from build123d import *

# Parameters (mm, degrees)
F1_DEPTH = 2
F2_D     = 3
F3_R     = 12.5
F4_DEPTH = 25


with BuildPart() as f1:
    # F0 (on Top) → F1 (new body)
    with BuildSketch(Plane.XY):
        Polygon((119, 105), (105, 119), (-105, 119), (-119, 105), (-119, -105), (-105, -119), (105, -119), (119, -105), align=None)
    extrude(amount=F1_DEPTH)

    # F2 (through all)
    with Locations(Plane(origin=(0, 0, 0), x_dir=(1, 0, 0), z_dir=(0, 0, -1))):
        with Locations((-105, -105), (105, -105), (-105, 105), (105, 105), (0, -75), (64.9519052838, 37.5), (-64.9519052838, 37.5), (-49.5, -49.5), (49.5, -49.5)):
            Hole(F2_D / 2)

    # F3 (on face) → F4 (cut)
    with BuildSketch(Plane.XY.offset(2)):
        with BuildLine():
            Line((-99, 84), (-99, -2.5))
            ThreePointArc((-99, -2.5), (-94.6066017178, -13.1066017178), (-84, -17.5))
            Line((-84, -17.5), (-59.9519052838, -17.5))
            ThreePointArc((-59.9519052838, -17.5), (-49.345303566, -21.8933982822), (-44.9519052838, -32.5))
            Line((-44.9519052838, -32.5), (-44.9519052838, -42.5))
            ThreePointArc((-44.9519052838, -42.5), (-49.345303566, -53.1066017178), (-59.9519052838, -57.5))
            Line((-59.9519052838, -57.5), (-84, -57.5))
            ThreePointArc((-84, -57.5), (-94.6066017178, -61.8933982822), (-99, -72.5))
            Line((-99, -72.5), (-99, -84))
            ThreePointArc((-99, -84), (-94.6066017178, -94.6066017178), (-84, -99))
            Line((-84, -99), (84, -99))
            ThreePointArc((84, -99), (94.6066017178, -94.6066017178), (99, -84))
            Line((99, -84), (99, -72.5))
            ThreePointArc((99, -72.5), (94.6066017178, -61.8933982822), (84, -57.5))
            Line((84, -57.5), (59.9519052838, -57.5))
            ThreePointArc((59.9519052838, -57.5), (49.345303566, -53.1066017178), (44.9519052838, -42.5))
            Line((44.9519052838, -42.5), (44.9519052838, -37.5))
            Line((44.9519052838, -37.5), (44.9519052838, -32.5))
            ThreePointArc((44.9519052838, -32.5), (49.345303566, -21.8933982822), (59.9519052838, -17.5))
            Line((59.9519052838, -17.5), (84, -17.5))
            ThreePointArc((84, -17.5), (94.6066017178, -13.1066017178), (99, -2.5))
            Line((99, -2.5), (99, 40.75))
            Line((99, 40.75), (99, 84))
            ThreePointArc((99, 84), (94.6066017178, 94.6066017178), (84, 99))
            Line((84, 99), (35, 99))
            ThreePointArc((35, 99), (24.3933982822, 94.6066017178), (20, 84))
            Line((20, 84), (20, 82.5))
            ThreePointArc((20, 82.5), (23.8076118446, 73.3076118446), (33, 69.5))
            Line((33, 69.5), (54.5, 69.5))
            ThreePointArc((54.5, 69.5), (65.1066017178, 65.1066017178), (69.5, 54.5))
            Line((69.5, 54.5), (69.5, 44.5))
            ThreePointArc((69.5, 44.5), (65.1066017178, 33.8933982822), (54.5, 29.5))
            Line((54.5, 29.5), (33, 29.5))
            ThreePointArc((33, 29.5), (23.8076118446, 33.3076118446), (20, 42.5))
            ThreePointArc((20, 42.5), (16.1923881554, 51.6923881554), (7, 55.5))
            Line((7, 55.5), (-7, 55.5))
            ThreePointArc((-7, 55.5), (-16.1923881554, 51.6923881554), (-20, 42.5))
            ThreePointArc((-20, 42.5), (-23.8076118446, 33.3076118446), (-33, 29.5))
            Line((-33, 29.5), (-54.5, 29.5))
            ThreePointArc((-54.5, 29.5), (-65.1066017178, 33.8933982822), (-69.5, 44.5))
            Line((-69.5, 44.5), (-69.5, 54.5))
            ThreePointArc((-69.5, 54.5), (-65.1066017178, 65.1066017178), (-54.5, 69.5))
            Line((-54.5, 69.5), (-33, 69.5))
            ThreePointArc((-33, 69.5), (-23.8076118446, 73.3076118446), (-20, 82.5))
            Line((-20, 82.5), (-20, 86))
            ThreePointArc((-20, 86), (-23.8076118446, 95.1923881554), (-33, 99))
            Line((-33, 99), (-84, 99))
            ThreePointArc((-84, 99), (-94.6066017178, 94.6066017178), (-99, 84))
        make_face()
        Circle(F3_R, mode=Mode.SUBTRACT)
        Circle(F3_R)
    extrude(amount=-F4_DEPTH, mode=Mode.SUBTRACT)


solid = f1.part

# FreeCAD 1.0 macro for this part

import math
import FreeCAD as App
import Part
import Sketcher
Q = App.Units.Quantity

doc = App.newDocument("Part")
body = doc.addObject("PartDesign::Body", "Body")

sketch1 = body.newObject("Sketcher::SketchObject", "Sketch")
sketch1.AttachmentSupport = (doc.getObject("XY_Plane"), [""])
sketch1.MapMode = "FlatFace"
sketch1.addGeometry([
    Part.LineSegment(App.Vector(119, 105, 0), App.Vector(105, 119, 0)),
    Part.LineSegment(App.Vector(105, 119, 0), App.Vector(-105, 119, 0)),
    Part.LineSegment(App.Vector(-105, 119, 0), App.Vector(-119, 105, 0)),
    Part.LineSegment(App.Vector(-119, 105, 0), App.Vector(-119, -105, 0)),
    Part.LineSegment(App.Vector(-119, -105, 0), App.Vector(-105, -119, 0)),
    Part.LineSegment(App.Vector(-105, -119, 0), App.Vector(105, -119, 0)),
    Part.LineSegment(App.Vector(105, -119, 0), App.Vector(119, -105, 0)),
    Part.LineSegment(App.Vector(119, -105, 0), App.Vector(119, 105, 0)),
], False)
sketch1.addConstraint([
    Sketcher.Constraint("Coincident", 0, 2, 1, 1),
    Sketcher.Constraint("Coincident", 1, 2, 2, 1),
    Sketcher.Constraint("Coincident", 2, 2, 3, 1),
    Sketcher.Constraint("Coincident", 3, 2, 4, 1),
    Sketcher.Constraint("Coincident", 4, 2, 5, 1),
    Sketcher.Constraint("Coincident", 5, 2, 6, 1),
    Sketcher.Constraint("Coincident", 6, 2, 7, 1),
    Sketcher.Constraint("Coincident", 7, 2, 0, 1),
    Sketcher.Constraint("Horizontal", 1),
    Sketcher.Constraint("Vertical", 3),
    Sketcher.Constraint("Horizontal", 5),
    Sketcher.Constraint("Vertical", 7),
    Sketcher.Constraint("Symmetric", 0, 2, 4, 2, -1, 1),
    Sketcher.Constraint("Symmetric", 2, 2, 6, 2, -1, 1),
    Sketcher.Constraint("Perpendicular", 0, 2),
    Sketcher.Constraint("Perpendicular", 2, 4),
    Sketcher.Constraint("Perpendicular", 4, 6),
    Sketcher.Constraint("Horizontal", 3, 2, 6, 2),
    Sketcher.Constraint("Vertical", 1, 2, 4, 2),
    Sketcher.Constraint("Equal", 5, 3),
    Sketcher.Constraint("DistanceX", 1, 2, 1, 1, Q("210 mm")),
    Sketcher.Constraint("DistanceY", -1, 1, 0, 2, Q("119 mm")),
])
pad1 = body.newObject("PartDesign::Pad", "Pad")
pad1.Profile = sketch1
pad1.Length = 2

sketch2 = body.newObject("Sketcher::SketchObject", "Sketch001")
sketch2.AttachmentSupport = (doc.getObject("XY_Plane"), [""])
sketch2.MapMode = "FlatFace"
sketch2.addGeometry([
    Part.Circle(App.Vector(-105, 105, 0), App.Vector(0, 0, 1), 1.5),
    Part.Circle(App.Vector(105, 105, 0), App.Vector(0, 0, 1), 1.5),
    Part.Circle(App.Vector(-105, -105, 0), App.Vector(0, 0, 1), 1.5),
    Part.Circle(App.Vector(105, -105, 0), App.Vector(0, 0, 1), 1.5),
    Part.Circle(App.Vector(0, 75, 0), App.Vector(0, 0, 1), 1.5),
    Part.Circle(App.Vector(65, -37.5, 0), App.Vector(0, 0, 1), 1.5),
    Part.Circle(App.Vector(-65, -37.5, 0), App.Vector(0, 0, 1), 1.5),
    Part.Circle(App.Vector(-49.5, 49.5, 0), App.Vector(0, 0, 1), 1.5),
    Part.Circle(App.Vector(49.5, 49.5, 0), App.Vector(0, 0, 1), 1.5),
], False)
sketch2.addConstraint([
    Sketcher.Constraint("Equal", 0, 1),
    Sketcher.Constraint("Equal", 1, 2),
    Sketcher.Constraint("Equal", 2, 3),
    Sketcher.Constraint("Equal", 3, 4),
    Sketcher.Constraint("Equal", 4, 5),
    Sketcher.Constraint("Equal", 5, 6),
    Sketcher.Constraint("Equal", 6, 7),
    Sketcher.Constraint("Equal", 7, 8),
    Sketcher.Constraint("Symmetric", 1, 3, 2, 3, -1, 1),
    Sketcher.Constraint("Symmetric", 0, 3, 3, 3, -1, 1),
    Sketcher.Constraint("Symmetric", 0, 3, 1, 3, -2),
    Sketcher.Constraint("Symmetric", 5, 3, 6, 3, -2),
    Sketcher.Constraint("Symmetric", 7, 3, 8, 3, -2),
    Sketcher.Constraint("PointOnObject", 4, 3, -2),
    Sketcher.Constraint("Diameter", 0, Q("3 mm")),
    Sketcher.Constraint("DistanceX", 0, 3, -1, 1, Q("105 mm")),
    Sketcher.Constraint("DistanceY", -1, 1, 0, 3, Q("105 mm")),
    Sketcher.Constraint("DistanceY", -1, 1, 4, 3, Q("75 mm")),
    Sketcher.Constraint("DistanceY", 6, 3, 7, 3, Q("87 mm")),
    Sketcher.Constraint("DistanceX", 7, 3, 8, 3, Q("99 mm")),
    Sketcher.Constraint("DistanceY", 5, 3, -1, 1, Q("37.5 mm")),
    Sketcher.Constraint("DistanceX", 6, 3, 5, 3, Q("129.903811 mm")),
])
doc.recompute()
hole = body.newObject("PartDesign::Hole", "Hole")
hole.Profile = sketch2
hole.ThreadType = "None"
hole.Diameter = 3
hole.DepthType = "ThroughAll"
hole.Reversed = True

sketch3 = body.newObject("Sketcher::SketchObject", "Sketch002")
sketch3.AttachmentSupport = (doc.getObject("XY_Plane"), [""])
sketch3.MapMode = "FlatFace"
sketch3.AttachmentOffset = App.Placement(App.Vector(0, 0, 2), App.Rotation())
sketch3.addGeometry([
    Part.LineSegment(App.Vector(-99, 84, 0), App.Vector(-99, -2.5, 0)),
    Part.ArcOfCircle(Part.Circle(App.Vector(-84, -2.5, 0), App.Vector(0, 0, 1), 15), math.radians(180), math.radians(270)),
    Part.LineSegment(App.Vector(-84, -17.5, 0), App.Vector(-60, -17.5, 0)),
    Part.ArcOfCircle(Part.Circle(App.Vector(-60, -32.5, 0), App.Vector(0, 0, 1), 15), math.radians(0), math.radians(90)),
    Part.LineSegment(App.Vector(-45, -32.5, 0), App.Vector(-45, -42.5, 0)),
    Part.ArcOfCircle(Part.Circle(App.Vector(-60, -42.5, 0), App.Vector(0, 0, 1), 15), math.radians(-90), math.radians(0)),
    Part.LineSegment(App.Vector(-60, -57.5, 0), App.Vector(-84, -57.5, 0)),
    Part.ArcOfCircle(Part.Circle(App.Vector(-84, -72.5, 0), App.Vector(0, 0, 1), 15), math.radians(90), math.radians(180)),
    Part.LineSegment(App.Vector(-99, -72.5, 0), App.Vector(-99, -84, 0)),
    Part.ArcOfCircle(Part.Circle(App.Vector(-84, -84, 0), App.Vector(0, 0, 1), 15), math.radians(180), math.radians(270)),
    Part.LineSegment(App.Vector(-84, -99, 0), App.Vector(84, -99, 0)),
    Part.ArcOfCircle(Part.Circle(App.Vector(84, -84, 0), App.Vector(0, 0, 1), 15), math.radians(-90), math.radians(0)),
    Part.LineSegment(App.Vector(99, -84, 0), App.Vector(99, -72.5, 0)),
    Part.ArcOfCircle(Part.Circle(App.Vector(84, -72.5, 0), App.Vector(0, 0, 1), 15), math.radians(0), math.radians(90)),
    Part.LineSegment(App.Vector(84, -57.5, 0), App.Vector(60, -57.5, 0)),
    Part.ArcOfCircle(Part.Circle(App.Vector(60, -42.5, 0), App.Vector(0, 0, 1), 15), math.radians(180), math.radians(270)),
    Part.LineSegment(App.Vector(45, -42.5, 0), App.Vector(45, -32.5, 0)),
    Part.ArcOfCircle(Part.Circle(App.Vector(60, -32.5, 0), App.Vector(0, 0, 1), 15), math.radians(90), math.radians(180)),
    Part.LineSegment(App.Vector(60, -17.5, 0), App.Vector(84, -17.5, 0)),
    Part.ArcOfCircle(Part.Circle(App.Vector(84, -2.5, 0), App.Vector(0, 0, 1), 15), math.radians(-90), math.radians(0)),
    Part.LineSegment(App.Vector(99, -2.5, 0), App.Vector(99, 84, 0)),
    Part.ArcOfCircle(Part.Circle(App.Vector(84, 84, 0), App.Vector(0, 0, 1), 15), math.radians(0), math.radians(90)),
    Part.LineSegment(App.Vector(84, 99, 0), App.Vector(35, 99, 0)),
    Part.ArcOfCircle(Part.Circle(App.Vector(35, 84, 0), App.Vector(0, 0, 1), 15), math.radians(90), math.radians(180)),
    Part.LineSegment(App.Vector(20, 84, 0), App.Vector(20, 82.5, 0)),
    Part.ArcOfCircle(Part.Circle(App.Vector(33, 82.5, 0), App.Vector(0, 0, 1), 13), math.radians(180), math.radians(270)),
    Part.LineSegment(App.Vector(33, 69.5, 0), App.Vector(54.5, 69.5, 0)),
    Part.ArcOfCircle(Part.Circle(App.Vector(54.5, 54.5, 0), App.Vector(0, 0, 1), 15), math.radians(0), math.radians(90)),
    Part.LineSegment(App.Vector(69.5, 54.5, 0), App.Vector(69.5, 44.5, 0)),
    Part.ArcOfCircle(Part.Circle(App.Vector(54.5, 44.5, 0), App.Vector(0, 0, 1), 15), math.radians(-90), math.radians(0)),
    Part.LineSegment(App.Vector(54.5, 29.5, 0), App.Vector(33, 29.5, 0)),
    Part.ArcOfCircle(Part.Circle(App.Vector(33, 42.5, 0), App.Vector(0, 0, 1), 13), math.radians(180), math.radians(270)),
    Part.ArcOfCircle(Part.Circle(App.Vector(7, 42.5, 0), App.Vector(0, 0, 1), 13), math.radians(0), math.radians(90)),
    Part.LineSegment(App.Vector(7, 55.5, 0), App.Vector(-7, 55.5, 0)),
    Part.ArcOfCircle(Part.Circle(App.Vector(-7, 42.5, 0), App.Vector(0, 0, 1), 13), math.radians(90), math.radians(180)),
    Part.ArcOfCircle(Part.Circle(App.Vector(-33, 42.5, 0), App.Vector(0, 0, 1), 13), math.radians(-90), math.radians(0)),
    Part.LineSegment(App.Vector(-33, 29.5, 0), App.Vector(-54.5, 29.5, 0)),
    Part.ArcOfCircle(Part.Circle(App.Vector(-54.5, 44.5, 0), App.Vector(0, 0, 1), 15), math.radians(180), math.radians(270)),
    Part.LineSegment(App.Vector(-69.5, 44.5, 0), App.Vector(-69.5, 54.5, 0)),
    Part.ArcOfCircle(Part.Circle(App.Vector(-54.5, 54.5, 0), App.Vector(0, 0, 1), 15), math.radians(90), math.radians(180)),
    Part.LineSegment(App.Vector(-54.5, 69.5, 0), App.Vector(-33, 69.5, 0)),
    Part.ArcOfCircle(Part.Circle(App.Vector(-33, 82.5, 0), App.Vector(0, 0, 1), 13), math.radians(-90), math.radians(0)),
    Part.LineSegment(App.Vector(-20, 82.5, 0), App.Vector(-20, 86, 0)),
    Part.ArcOfCircle(Part.Circle(App.Vector(-33, 86, 0), App.Vector(0, 0, 1), 13), math.radians(0), math.radians(90)),
    Part.LineSegment(App.Vector(-33, 99, 0), App.Vector(-84, 99, 0)),
    Part.ArcOfCircle(Part.Circle(App.Vector(-84, 84, 0), App.Vector(0, 0, 1), 15), math.radians(90), math.radians(180)),
], False)
sketch3.addConstraint([
    Sketcher.Constraint("Tangent", 0, 2, 1, 1),
    Sketcher.Constraint("Tangent", 1, 2, 2, 1),
    Sketcher.Constraint("Tangent", 2, 2, 3, 2),
    Sketcher.Constraint("Tangent", 3, 1, 4, 1),
    Sketcher.Constraint("Tangent", 4, 2, 5, 2),
    Sketcher.Constraint("Tangent", 5, 1, 6, 1),
    Sketcher.Constraint("Tangent", 6, 2, 7, 1),
    Sketcher.Constraint("Tangent", 7, 2, 8, 1),
    Sketcher.Constraint("Tangent", 8, 2, 9, 1),
    Sketcher.Constraint("Tangent", 9, 2, 10, 1),
    Sketcher.Constraint("Tangent", 10, 2, 11, 1),
    Sketcher.Constraint("Tangent", 11, 2, 12, 1),
    Sketcher.Constraint("Tangent", 12, 2, 13, 1),
    Sketcher.Constraint("Tangent", 13, 2, 14, 1),
    Sketcher.Constraint("Tangent", 14, 2, 15, 2),
    Sketcher.Constraint("Tangent", 15, 1, 16, 1),
    Sketcher.Constraint("Tangent", 16, 2, 17, 2),
    Sketcher.Constraint("Tangent", 17, 1, 18, 1),
    Sketcher.Constraint("Tangent", 18, 2, 19, 1),
    Sketcher.Constraint("Tangent", 19, 2, 20, 1),
    Sketcher.Constraint("Tangent", 20, 2, 21, 1),
    Sketcher.Constraint("Tangent", 21, 2, 22, 1),
    Sketcher.Constraint("Tangent", 22, 2, 23, 1),
    Sketcher.Constraint("Tangent", 23, 2, 24, 1),
    Sketcher.Constraint("Tangent", 24, 2, 25, 1),
    Sketcher.Constraint("Tangent", 25, 2, 26, 1),
    Sketcher.Constraint("Tangent", 26, 2, 27, 2),
    Sketcher.Constraint("Tangent", 27, 1, 28, 1),
    Sketcher.Constraint("Tangent", 28, 2, 29, 2),
    Sketcher.Constraint("Tangent", 29, 1, 30, 1),
    Sketcher.Constraint("Tangent", 30, 2, 31, 2),
    Sketcher.Constraint("Tangent", 31, 1, 32, 1),
    Sketcher.Constraint("Tangent", 32, 2, 33, 1),
    Sketcher.Constraint("Tangent", 33, 2, 34, 1),
    Sketcher.Constraint("Tangent", 34, 2, 35, 2),
    Sketcher.Constraint("Tangent", 35, 1, 36, 1),
    Sketcher.Constraint("Tangent", 36, 2, 37, 2),
    Sketcher.Constraint("Tangent", 37, 1, 38, 1),
    Sketcher.Constraint("Tangent", 38, 2, 39, 2),
    Sketcher.Constraint("Tangent", 39, 1, 40, 1),
    Sketcher.Constraint("Tangent", 40, 2, 41, 1),
    Sketcher.Constraint("Tangent", 41, 2, 42, 1),
    Sketcher.Constraint("Tangent", 42, 2, 43, 1),
    Sketcher.Constraint("Tangent", 43, 2, 44, 1),
    Sketcher.Constraint("Tangent", 44, 2, 45, 1),
    Sketcher.Constraint("Tangent", 45, 2, 0, 1),
    Sketcher.Constraint("Vertical", 0),
    Sketcher.Constraint("Horizontal", 2),
    Sketcher.Constraint("Vertical", 4),
    Sketcher.Constraint("Horizontal", 6),
    Sketcher.Constraint("Vertical", 8),
    Sketcher.Constraint("Horizontal", 10),
    Sketcher.Constraint("Vertical", 12),
    Sketcher.Constraint("Horizontal", 14),
    Sketcher.Constraint("Vertical", 16),
    Sketcher.Constraint("Horizontal", 18),
    Sketcher.Constraint("Vertical", 20),
    Sketcher.Constraint("Horizontal", 22),
    Sketcher.Constraint("Vertical", 24),
    Sketcher.Constraint("Horizontal", 26),
    Sketcher.Constraint("Vertical", 28),
    Sketcher.Constraint("Horizontal", 30),
    Sketcher.Constraint("Horizontal", 33),
    Sketcher.Constraint("Horizontal", 36),
    Sketcher.Constraint("Vertical", 38),
    Sketcher.Constraint("Horizontal", 40),
    Sketcher.Constraint("Vertical", 42),
    Sketcher.Constraint("Horizontal", 44),
    Sketcher.Constraint("Equal", 1, 3),
    Sketcher.Constraint("Equal", 3, 5),
    Sketcher.Constraint("Equal", 5, 7),
    Sketcher.Constraint("Equal", 7, 9),
    Sketcher.Constraint("Equal", 9, 11),
    Sketcher.Constraint("Equal", 11, 13),
    Sketcher.Constraint("Equal", 13, 15),
    Sketcher.Constraint("Equal", 15, 17),
    Sketcher.Constraint("Equal", 17, 19),
    Sketcher.Constraint("Equal", 19, 21),
    Sketcher.Constraint("Equal", 21, 23),
    Sketcher.Constraint("Equal", 23, 27),
    Sketcher.Constraint("Equal", 27, 29),
    Sketcher.Constraint("Equal", 25, 31),
    Sketcher.Constraint("Equal", 31, 32),
    Sketcher.Constraint("Equal", 32, 34),
    Sketcher.Constraint("Equal", 34, 35),
    Sketcher.Constraint("Equal", 29, 37),
    Sketcher.Constraint("Equal", 37, 39),
    Sketcher.Constraint("Equal", 35, 41),
    Sketcher.Constraint("Equal", 41, 43),
    Sketcher.Constraint("Equal", 39, 45),
    Sketcher.Constraint("Symmetric", 9, 3, 21, 3, -1, 1),
    Sketcher.Constraint("Symmetric", 11, 3, 45, 3, -1, 1),
    Sketcher.Constraint("Symmetric", 7, 3, 13, 3, -2),
    Sketcher.Constraint("Symmetric", 3, 3, 17, 3, -2),
    Sketcher.Constraint("Symmetric", 31, 3, 35, 3, -2),
    Sketcher.Constraint("Symmetric", 27, 3, 39, 3, -2),
    Sketcher.Constraint("Horizontal", 31, 3, 32, 3),
    Sketcher.Constraint("Vertical", 25, 3, 31, 3),
    Sketcher.Constraint("Vertical", 35, 3, 41, 3),
    Sketcher.Constraint("Equal", 16, 28),
    Sketcher.Constraint("Radius", 1, Q("15 mm")),
    Sketcher.Constraint("Radius", 25, Q("13 mm")),
    Sketcher.Constraint("DistanceX", 10, 1, 10, 2, Q("168 mm")),
    Sketcher.Constraint("DistanceX", 22, 2, 22, 1, Q("49 mm")),
    Sketcher.Constraint("DistanceY", 4, 2, 4, 1, Q("10 mm")),
    Sketcher.Constraint("DistanceX", 26, 1, 26, 2, Q("21.5 mm")),
    Sketcher.Constraint("DistanceY", 0, 2, 0, 1, Q("86.5 mm")),
    Sketcher.Constraint("DistanceY", 8, 2, 8, 1, Q("11.5 mm")),
    Sketcher.Constraint("DistanceY", 24, 2, 24, 1, Q("1.5 mm")),
    Sketcher.Constraint("DistanceX", 2, 1, 2, 2, Q("24.048095 mm")),
])
pocket1 = body.newObject("PartDesign::Pocket", "Pocket")
pocket1.Profile = sketch3
pocket1.Length = 25

doc.recompute()
